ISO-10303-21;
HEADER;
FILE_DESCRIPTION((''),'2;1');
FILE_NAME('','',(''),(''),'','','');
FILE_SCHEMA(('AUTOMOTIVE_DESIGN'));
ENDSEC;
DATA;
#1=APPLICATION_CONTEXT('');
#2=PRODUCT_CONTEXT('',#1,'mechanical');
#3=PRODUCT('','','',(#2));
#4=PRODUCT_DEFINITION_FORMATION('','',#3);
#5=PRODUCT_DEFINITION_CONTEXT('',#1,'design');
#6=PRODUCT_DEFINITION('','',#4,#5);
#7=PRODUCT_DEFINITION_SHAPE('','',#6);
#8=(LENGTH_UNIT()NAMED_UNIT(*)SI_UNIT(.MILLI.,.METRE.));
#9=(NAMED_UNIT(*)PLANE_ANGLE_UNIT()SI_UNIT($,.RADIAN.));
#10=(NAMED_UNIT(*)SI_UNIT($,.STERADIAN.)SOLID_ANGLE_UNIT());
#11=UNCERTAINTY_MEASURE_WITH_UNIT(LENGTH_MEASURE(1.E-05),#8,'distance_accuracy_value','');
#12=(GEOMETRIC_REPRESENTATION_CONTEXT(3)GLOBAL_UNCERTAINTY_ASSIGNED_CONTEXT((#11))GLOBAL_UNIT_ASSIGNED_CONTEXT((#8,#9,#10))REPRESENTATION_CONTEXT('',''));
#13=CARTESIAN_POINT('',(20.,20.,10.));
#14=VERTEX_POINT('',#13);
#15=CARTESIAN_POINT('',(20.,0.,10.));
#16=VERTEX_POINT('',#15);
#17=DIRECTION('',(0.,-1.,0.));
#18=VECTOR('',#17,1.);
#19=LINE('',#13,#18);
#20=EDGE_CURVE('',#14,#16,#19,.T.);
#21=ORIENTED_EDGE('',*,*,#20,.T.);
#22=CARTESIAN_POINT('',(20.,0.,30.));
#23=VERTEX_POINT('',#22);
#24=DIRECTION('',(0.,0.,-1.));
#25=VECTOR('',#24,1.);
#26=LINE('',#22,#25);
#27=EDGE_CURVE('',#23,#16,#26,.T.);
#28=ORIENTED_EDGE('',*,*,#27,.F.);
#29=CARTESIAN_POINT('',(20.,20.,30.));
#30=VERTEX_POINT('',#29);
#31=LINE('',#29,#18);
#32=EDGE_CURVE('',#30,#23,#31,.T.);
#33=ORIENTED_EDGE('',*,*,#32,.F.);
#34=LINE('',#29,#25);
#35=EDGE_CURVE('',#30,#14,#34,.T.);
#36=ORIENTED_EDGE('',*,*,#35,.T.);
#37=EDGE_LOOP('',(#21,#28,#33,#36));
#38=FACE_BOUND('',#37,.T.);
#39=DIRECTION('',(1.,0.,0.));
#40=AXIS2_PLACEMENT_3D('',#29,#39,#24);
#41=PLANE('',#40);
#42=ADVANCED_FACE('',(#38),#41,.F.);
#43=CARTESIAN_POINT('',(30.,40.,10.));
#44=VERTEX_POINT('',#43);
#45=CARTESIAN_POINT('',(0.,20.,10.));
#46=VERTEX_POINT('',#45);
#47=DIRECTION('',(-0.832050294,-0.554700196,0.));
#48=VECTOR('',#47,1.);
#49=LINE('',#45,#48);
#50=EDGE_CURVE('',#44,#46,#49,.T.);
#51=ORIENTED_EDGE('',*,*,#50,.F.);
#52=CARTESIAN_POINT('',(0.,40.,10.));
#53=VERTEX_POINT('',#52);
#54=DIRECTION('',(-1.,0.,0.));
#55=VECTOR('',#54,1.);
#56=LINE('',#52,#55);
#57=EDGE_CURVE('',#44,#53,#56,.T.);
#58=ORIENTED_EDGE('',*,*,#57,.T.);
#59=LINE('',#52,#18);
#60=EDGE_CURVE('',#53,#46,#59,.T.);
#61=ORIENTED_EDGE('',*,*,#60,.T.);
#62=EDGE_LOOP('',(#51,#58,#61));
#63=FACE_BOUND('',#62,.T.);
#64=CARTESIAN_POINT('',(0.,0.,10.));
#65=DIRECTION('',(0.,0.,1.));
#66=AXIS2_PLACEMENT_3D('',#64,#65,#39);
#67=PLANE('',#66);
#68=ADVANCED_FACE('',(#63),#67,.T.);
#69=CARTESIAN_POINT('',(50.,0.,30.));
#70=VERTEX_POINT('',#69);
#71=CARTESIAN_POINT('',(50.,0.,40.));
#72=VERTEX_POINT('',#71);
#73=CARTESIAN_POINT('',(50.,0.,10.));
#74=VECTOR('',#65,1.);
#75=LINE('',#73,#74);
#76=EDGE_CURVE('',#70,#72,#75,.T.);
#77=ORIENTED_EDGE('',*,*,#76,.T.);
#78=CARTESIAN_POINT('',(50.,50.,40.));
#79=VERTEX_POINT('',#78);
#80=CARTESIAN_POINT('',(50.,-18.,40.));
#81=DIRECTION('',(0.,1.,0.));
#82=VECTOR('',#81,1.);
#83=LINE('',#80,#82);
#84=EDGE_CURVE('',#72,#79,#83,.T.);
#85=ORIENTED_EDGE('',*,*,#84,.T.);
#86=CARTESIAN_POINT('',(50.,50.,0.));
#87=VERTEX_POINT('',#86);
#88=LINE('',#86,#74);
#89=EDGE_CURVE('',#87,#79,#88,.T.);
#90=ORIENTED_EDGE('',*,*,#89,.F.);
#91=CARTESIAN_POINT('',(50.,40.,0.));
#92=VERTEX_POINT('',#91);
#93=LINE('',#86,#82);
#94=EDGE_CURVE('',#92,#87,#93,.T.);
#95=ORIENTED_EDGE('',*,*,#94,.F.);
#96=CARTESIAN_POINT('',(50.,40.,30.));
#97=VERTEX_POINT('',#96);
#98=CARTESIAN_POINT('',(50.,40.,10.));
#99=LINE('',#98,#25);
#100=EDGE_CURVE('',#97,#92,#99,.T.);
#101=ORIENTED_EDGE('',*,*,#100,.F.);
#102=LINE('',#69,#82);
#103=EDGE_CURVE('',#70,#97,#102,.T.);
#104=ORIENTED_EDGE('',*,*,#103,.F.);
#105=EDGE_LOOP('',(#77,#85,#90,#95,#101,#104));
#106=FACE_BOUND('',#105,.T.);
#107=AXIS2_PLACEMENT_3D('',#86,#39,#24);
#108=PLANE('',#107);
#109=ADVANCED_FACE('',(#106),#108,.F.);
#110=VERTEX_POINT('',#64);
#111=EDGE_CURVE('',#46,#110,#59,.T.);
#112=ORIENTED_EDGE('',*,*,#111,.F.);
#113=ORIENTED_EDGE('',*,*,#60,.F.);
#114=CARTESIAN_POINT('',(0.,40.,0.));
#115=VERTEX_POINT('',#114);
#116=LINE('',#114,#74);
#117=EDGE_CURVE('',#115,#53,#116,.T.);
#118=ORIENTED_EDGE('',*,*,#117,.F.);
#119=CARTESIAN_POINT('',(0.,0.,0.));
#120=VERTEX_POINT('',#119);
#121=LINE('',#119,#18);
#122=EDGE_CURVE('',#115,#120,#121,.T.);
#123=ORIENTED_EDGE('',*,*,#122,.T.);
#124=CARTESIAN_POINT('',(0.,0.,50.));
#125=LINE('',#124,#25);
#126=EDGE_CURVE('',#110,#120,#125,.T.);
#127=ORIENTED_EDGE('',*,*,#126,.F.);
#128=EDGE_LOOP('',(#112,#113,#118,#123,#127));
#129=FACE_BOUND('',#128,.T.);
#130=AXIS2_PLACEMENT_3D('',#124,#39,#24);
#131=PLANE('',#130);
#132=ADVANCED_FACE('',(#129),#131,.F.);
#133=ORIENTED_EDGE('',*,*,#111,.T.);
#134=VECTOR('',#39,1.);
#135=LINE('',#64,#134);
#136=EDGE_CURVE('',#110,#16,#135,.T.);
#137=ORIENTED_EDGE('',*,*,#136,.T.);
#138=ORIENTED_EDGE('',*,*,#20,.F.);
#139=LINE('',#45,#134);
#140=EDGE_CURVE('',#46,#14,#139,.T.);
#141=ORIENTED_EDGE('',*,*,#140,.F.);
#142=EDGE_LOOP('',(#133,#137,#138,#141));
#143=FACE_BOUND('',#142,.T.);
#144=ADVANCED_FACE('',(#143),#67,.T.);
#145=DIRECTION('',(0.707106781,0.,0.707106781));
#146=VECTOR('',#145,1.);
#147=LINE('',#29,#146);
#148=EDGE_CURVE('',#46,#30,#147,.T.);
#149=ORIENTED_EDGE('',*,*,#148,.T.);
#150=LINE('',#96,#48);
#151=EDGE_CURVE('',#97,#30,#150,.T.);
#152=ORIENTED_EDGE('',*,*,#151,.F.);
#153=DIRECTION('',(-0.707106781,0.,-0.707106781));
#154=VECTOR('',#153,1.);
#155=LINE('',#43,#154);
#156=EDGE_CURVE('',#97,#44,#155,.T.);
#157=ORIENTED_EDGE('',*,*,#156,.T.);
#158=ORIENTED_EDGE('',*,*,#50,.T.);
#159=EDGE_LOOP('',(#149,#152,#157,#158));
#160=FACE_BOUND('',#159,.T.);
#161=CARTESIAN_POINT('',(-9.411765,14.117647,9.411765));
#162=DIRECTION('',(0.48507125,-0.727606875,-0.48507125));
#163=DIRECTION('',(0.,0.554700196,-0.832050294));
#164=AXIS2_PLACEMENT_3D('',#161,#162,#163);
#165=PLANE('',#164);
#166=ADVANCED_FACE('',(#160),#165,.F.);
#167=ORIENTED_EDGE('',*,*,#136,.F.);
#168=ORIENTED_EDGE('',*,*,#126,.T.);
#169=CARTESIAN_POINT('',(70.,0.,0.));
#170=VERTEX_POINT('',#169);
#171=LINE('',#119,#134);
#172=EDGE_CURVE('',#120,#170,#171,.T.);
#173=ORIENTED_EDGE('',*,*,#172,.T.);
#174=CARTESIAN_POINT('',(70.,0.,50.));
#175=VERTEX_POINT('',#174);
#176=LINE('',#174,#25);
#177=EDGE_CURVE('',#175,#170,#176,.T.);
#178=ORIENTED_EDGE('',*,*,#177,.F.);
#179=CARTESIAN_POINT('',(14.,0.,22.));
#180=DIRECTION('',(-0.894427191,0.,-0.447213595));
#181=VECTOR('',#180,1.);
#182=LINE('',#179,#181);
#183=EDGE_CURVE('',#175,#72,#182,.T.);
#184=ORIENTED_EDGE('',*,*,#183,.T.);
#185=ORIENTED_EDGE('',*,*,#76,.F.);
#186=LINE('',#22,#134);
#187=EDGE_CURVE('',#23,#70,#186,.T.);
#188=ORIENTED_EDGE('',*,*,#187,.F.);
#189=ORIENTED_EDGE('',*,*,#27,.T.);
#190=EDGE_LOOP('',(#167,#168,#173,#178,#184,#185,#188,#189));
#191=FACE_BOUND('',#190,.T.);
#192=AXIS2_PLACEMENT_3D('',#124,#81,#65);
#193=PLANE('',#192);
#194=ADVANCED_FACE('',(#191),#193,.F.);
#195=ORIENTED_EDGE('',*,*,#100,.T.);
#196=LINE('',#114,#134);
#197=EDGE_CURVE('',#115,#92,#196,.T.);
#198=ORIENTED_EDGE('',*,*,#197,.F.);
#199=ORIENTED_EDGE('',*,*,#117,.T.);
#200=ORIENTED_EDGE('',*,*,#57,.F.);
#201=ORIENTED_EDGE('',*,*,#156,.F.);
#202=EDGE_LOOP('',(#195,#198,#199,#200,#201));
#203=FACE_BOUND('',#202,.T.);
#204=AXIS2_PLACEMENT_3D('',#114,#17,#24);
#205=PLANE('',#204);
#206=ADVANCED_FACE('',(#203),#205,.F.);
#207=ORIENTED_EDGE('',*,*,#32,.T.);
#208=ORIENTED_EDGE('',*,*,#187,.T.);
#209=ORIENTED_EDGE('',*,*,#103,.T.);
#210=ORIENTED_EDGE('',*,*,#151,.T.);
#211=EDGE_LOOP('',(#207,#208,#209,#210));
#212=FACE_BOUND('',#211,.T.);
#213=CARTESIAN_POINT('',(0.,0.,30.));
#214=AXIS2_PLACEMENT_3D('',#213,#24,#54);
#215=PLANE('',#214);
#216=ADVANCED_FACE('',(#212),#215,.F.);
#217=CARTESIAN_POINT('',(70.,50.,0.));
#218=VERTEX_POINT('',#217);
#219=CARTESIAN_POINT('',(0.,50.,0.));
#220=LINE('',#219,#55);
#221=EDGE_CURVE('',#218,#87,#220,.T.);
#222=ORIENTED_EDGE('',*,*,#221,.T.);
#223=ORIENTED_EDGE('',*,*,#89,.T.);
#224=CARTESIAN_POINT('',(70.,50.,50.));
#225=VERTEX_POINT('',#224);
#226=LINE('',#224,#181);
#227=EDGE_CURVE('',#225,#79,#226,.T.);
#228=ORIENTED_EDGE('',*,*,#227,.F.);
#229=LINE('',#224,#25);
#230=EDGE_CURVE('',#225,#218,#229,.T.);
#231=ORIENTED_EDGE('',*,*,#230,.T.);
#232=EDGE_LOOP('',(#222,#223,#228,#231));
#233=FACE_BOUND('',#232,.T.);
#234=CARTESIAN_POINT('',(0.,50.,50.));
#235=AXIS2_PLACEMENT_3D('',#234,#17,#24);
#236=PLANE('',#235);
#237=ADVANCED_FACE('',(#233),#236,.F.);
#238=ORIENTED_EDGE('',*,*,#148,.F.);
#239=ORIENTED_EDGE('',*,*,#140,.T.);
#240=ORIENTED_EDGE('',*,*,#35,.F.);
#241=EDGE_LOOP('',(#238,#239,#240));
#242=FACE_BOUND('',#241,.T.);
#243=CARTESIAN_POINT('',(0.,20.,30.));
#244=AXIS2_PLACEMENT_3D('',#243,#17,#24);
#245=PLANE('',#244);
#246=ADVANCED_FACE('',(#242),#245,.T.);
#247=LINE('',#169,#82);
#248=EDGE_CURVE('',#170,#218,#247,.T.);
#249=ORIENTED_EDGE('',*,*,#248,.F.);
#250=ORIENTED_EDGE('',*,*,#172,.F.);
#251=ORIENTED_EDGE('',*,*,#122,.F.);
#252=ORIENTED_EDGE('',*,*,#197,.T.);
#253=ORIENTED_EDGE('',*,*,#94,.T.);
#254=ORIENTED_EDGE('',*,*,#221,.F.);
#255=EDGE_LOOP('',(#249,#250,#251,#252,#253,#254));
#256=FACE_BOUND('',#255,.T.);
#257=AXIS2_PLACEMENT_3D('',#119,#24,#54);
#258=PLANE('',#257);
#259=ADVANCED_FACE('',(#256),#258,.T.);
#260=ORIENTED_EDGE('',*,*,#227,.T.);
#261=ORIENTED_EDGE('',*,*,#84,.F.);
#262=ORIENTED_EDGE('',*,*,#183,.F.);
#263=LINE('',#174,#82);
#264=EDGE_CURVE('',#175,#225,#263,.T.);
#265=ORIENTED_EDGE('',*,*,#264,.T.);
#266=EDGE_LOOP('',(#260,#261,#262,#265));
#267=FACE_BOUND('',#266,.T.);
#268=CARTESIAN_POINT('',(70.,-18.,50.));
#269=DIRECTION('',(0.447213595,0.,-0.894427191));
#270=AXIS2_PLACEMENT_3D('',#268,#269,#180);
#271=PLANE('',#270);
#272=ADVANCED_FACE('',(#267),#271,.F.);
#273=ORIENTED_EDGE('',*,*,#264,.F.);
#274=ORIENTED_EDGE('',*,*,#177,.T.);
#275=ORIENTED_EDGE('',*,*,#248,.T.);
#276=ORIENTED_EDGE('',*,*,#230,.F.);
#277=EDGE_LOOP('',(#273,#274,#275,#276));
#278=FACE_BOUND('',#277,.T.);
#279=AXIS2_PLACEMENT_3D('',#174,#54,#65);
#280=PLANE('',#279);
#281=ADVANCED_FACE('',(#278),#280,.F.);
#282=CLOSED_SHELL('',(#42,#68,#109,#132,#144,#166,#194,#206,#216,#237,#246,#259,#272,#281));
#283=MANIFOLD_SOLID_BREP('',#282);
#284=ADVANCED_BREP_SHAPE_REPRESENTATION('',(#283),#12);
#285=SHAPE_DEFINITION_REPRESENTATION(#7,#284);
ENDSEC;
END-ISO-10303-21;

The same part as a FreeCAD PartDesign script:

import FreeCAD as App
import Part
import Sketcher


def add_polygon(sketch, points):
    """Adds a closed chain of lines whose ends are joined by coincident constraints."""
    first, n = sketch.GeometryCount, len(points)
    for a, b in zip(points, points[1:] + points[:1]):
        sketch.addGeometry(Part.LineSegment(App.Vector(*a, 0), App.Vector(*b, 0)), False)
    for i in range(n):
        sketch.addConstraint(Sketcher.Constraint("Coincident", first + i, 2, first + (i + 1) % n, 1))

doc = App.newDocument("Part")
body = doc.addObject("PartDesign::Body", "Body")
body.AllowCompound = True

sketch1 = body.newObject("Sketcher::SketchObject", "Sketch")
sketch1.AttachmentSupport = (doc.getObject("XY_Plane"), [""])
sketch1.MapMode = "FlatFace"
add_polygon(sketch1, [(0, 50), (0, 0), (70, 0), (70, 50)])
sketch1.addConstraint([
    Sketcher.Constraint("Vertical", 0),
    Sketcher.Constraint("Horizontal", 1),
    Sketcher.Constraint("Vertical", 2),
    Sketcher.Constraint("Horizontal", 3),
    Sketcher.Constraint("Coincident", 0, 2, -1, 1),
    Sketcher.Constraint("DistanceX", 1, 1, 1, 2, 70.0),
    Sketcher.Constraint("DistanceY", 0, 2, 0, 1, 50.0),
])
pad1 = body.newObject("PartDesign::Pad", "Pad")
pad1.Profile = sketch1
pad1.Length = 50

sketch2 = body.newObject("Sketcher::SketchObject", "Sketch001")
sketch2.AttachmentSupport = (doc.getObject("XY_Plane"), [""])
sketch2.MapMode = "FlatFace"
sketch2.AttachmentOffset = App.Placement(App.Vector(0, 0, 50), App.Rotation())
add_polygon(sketch2, [(0, 50), (0, 40), (50, 40), (50, 50)])
sketch2.addConstraint([
    Sketcher.Constraint("Vertical", 0),
    Sketcher.Constraint("Horizontal", 1),
    Sketcher.Constraint("Vertical", 2),
    Sketcher.Constraint("Horizontal", 3),
    Sketcher.Constraint("PointOnObject", 0, 2, -2),
    Sketcher.Constraint("DistanceX", 1, 1, 1, 2, 50.0),
    Sketcher.Constraint("DistanceY", 0, 2, 0, 1, 10.0),
    Sketcher.Constraint("DistanceY", -1, 1, 0, 2, 40.0),
])
pocket1 = body.newObject("PartDesign::Pocket", "Pocket")
pocket1.Profile = sketch2
pocket1.Length = 50

sketch3 = body.newObject("Sketcher::SketchObject", "Sketch002")
sketch3.AttachmentSupport = (doc.getObject("XY_Plane"), [""])
sketch3.MapMode = "FlatFace"
sketch3.AttachmentOffset = App.Placement(App.Vector(0, 0, 50), App.Rotation())
add_polygon(sketch3, [(0, 40), (0, 0), (50, 0), (50, 40)])
sketch3.addConstraint([
    Sketcher.Constraint("Vertical", 0),
    Sketcher.Constraint("Horizontal", 1),
    Sketcher.Constraint("Vertical", 2),
    Sketcher.Constraint("Horizontal", 3),
    Sketcher.Constraint("Coincident", 0, 2, -1, 1),
    Sketcher.Constraint("DistanceX", 1, 1, 1, 2, 50.0),
    Sketcher.Constraint("DistanceY", 0, 2, 0, 1, 40.0),
])
pocket2 = body.newObject("PartDesign::Pocket", "Pocket001")
pocket2.Profile = sketch3
pocket2.Length = 40

sketch4 = body.newObject("Sketcher::SketchObject", "Sketch003")
sketch4.AttachmentSupport = (doc.getObject("XY_Plane"), [""])
sketch4.MapMode = "FlatFace"
sketch4.AttachmentOffset = App.Placement(App.Vector(0, 0, 10), App.Rotation())
add_polygon(sketch4, [(30, 40), (0, 20), (20, 20), (50, 40)])
sketch4.addConstraint([
    Sketcher.Constraint("Horizontal", 1),
    Sketcher.Constraint("Horizontal", 3),
    Sketcher.Constraint("PointOnObject", 0, 2, -2),
    Sketcher.Constraint("Parallel", 0, 2),
    Sketcher.Constraint("DistanceX", 1, 1, 1, 2, 20.0),
    Sketcher.Constraint("DistanceY", -1, 1, 0, 2, 20.0),
    Sketcher.Constraint("DistanceX", -1, 1, 2, 2, 50.0),
    Sketcher.Constraint("DistanceY", -1, 1, 2, 2, 40.0),
])
pocket3 = body.newObject("PartDesign::Pocket", "Pocket002")
pocket3.Profile = sketch4
pocket3.Length = 20

sketch5 = body.newObject("Sketcher::SketchObject", "Sketch004")
sketch5.AttachmentSupport = (doc.getObject("XY_Plane"), [""])
sketch5.MapMode = "FlatFace"
sketch5.AttachmentOffset = App.Placement(App.Vector(0, 0, 10), App.Rotation())
add_polygon(sketch5, [(50, 40), (20, 20), (20, 0), (50, 0)])
sketch5.addConstraint([
    Sketcher.Constraint("Vertical", 1),
    Sketcher.Constraint("Horizontal", 2),
    Sketcher.Constraint("Vertical", 3),
    Sketcher.Constraint("PointOnObject", 1, 2, -1),
    Sketcher.Constraint("DistanceX", 2, 1, 2, 2, 30.0),
    Sketcher.Constraint("DistanceY", 1, 2, 1, 1, 20.0),
    Sketcher.Constraint("DistanceY", 3, 1, 3, 2, 40.0),
    Sketcher.Constraint("DistanceX", -1, 1, 0, 2, 20.0),
])
pad2 = body.newObject("PartDesign::Pad", "Pad001")
pad2.Profile = sketch5
pad2.Length = 20

sketch6 = body.newObject("Sketcher::SketchObject", "Sketch005")
sketch6.Placement = App.Placement(App.Vector(-9.411765, 14.117647, 9.411765), App.Rotation(App.Vector(0.874474632, 0.403603676, 0.269069118), App.Vector(0, 0.554700196, -0.832050294), App.Vector(-0.48507125, 0.727606875, 0.48507125), "ZXY"))
add_polygon(sketch6, [(68, -3), (45, 14), (11, 3), (34, -14)])
sketch6.addConstraint([
    Sketcher.Constraint("Parallel", 0, 2),
    Sketcher.Constraint("Parallel", 1, 3),
    Sketcher.Constraint("DistanceY", 3, 2, 1, 2, 5.547002),
    Sketcher.Constraint("DistanceY", -1, 1, 1, 2, 2.773501),
    Sketcher.Constraint("Distance", 0, 28.284271),
    Sketcher.Constraint("DistanceX", -1, 1, 2, 2, 33.63364),
    Sketcher.Constraint("DistanceY", 2, 2, 0, 2, 27.73501),
    Sketcher.Constraint("Distance", 1, 36.055513),
])
pad3 = body.newObject("PartDesign::Pad", "Pad002")
pad3.Profile = sketch6
pad3.Length = 20
pad3.Reversed = True

sketch7 = body.newObject("Sketcher::SketchObject", "Sketch006")
sketch7.AttachmentSupport = (doc.getObject("YZ_Plane"), [""])
sketch7.MapMode = "FlatFace"
sketch7.AttachmentOffset = App.Placement(App.Vector(0, 0, 20), App.Rotation())
add_polygon(sketch7, [(20, 10), (0, 10), (0, 30), (20, 30)])
sketch7.addConstraint([
    Sketcher.Constraint("Horizontal", 0),
    Sketcher.Constraint("Vertical", 1),
    Sketcher.Constraint("Horizontal", 2),
    Sketcher.Constraint("Vertical", 3),
    Sketcher.Constraint("PointOnObject", 0, 2, -2),
    Sketcher.Constraint("Equal", 2, 1),
    Sketcher.Constraint("DistanceX", 0, 2, 0, 1, 20.0),
    Sketcher.Constraint("DistanceY", -1, 1, 0, 2, 10.0),
])
pocket4 = body.newObject("PartDesign::Pocket", "Pocket003")
pocket4.Profile = sketch7
pocket4.Length = 20

sketch8 = body.newObject("Sketcher::SketchObject", "Sketch007")
sketch8.AttachmentSupport = (doc.getObject("XY_Plane"), [""])
sketch8.MapMode = "FlatFace"
add_polygon(sketch8, [(50, 40), (20, 20), (0, 20), (30, 40)])
sketch8.addConstraint([
    Sketcher.Constraint("Horizontal", 1),
    Sketcher.Constraint("Horizontal", 3),
    Sketcher.Constraint("PointOnObject", 1, 2, -2),
    Sketcher.Constraint("Parallel", 0, 2),
    Sketcher.Constraint("DistanceX", 1, 2, 1, 1, 20.0),
    Sketcher.Constraint("DistanceY", -1, 1, 0, 2, 20.0),
    Sketcher.Constraint("DistanceX", -1, 1, 2, 2, 30.0),
    Sketcher.Constraint("DistanceY", -1, 1, 2, 2, 40.0),
])
pad4 = body.newObject("PartDesign::Pad", "Pad003")
pad4.Profile = sketch8
pad4.Length = 10

sketch9 = body.newObject("Sketcher::SketchObject", "Sketch008")
sketch9.AttachmentSupport = (doc.getObject("XZ_Plane"), [""])
sketch9.MapMode = "FlatFace"
sketch9.AttachmentOffset = App.Placement(App.Vector(0, 0, -40), App.Rotation())
add_polygon(sketch9, [(50, 10), (30, 10), (50, 30)])
sketch9.addConstraint([
    Sketcher.Constraint("Horizontal", 0),
    Sketcher.Constraint("Vertical", 2),
    Sketcher.Constraint("Equal", 0, 2),
    Sketcher.Constraint("DistanceX", 0, 2, 0, 1, 20.0),
    Sketcher.Constraint("DistanceX", -1, 1, 0, 2, 30.0),
    Sketcher.Constraint("DistanceY", -1, 1, 0, 2, 10.0),
])
pad5 = body.newObject("PartDesign::Pad", "Pad004")
pad5.Profile = sketch9
pad5.Length = 10

sketch10 = body.newObject("Sketcher::SketchObject", "Sketch009")
sketch10.AttachmentSupport = (doc.getObject("XZ_Plane"), [""])
sketch10.MapMode = "FlatFace"
sketch10.AttachmentOffset = App.Placement(App.Vector(0, 0, -50), App.Rotation())
add_polygon(sketch10, [(70, 50), (50, 40), (50, 50)])
sketch10.addConstraint([
    Sketcher.Constraint("Vertical", 1),
    Sketcher.Constraint("Horizontal", 2),
    Sketcher.Constraint("DistanceX", 2, 1, 2, 2, 20.0),
    Sketcher.Constraint("DistanceY", 1, 1, 1, 2, 10.0),
    Sketcher.Constraint("DistanceX", -1, 1, 0, 2, 50.0),
    Sketcher.Constraint("DistanceY", -1, 1, 0, 2, 40.0),
])
pocket5 = body.newObject("PartDesign::Pocket", "Pocket004")
pocket5.Profile = sketch10
pocket5.Length = 68
pocket5.Reversed = True

doc.recompute()
